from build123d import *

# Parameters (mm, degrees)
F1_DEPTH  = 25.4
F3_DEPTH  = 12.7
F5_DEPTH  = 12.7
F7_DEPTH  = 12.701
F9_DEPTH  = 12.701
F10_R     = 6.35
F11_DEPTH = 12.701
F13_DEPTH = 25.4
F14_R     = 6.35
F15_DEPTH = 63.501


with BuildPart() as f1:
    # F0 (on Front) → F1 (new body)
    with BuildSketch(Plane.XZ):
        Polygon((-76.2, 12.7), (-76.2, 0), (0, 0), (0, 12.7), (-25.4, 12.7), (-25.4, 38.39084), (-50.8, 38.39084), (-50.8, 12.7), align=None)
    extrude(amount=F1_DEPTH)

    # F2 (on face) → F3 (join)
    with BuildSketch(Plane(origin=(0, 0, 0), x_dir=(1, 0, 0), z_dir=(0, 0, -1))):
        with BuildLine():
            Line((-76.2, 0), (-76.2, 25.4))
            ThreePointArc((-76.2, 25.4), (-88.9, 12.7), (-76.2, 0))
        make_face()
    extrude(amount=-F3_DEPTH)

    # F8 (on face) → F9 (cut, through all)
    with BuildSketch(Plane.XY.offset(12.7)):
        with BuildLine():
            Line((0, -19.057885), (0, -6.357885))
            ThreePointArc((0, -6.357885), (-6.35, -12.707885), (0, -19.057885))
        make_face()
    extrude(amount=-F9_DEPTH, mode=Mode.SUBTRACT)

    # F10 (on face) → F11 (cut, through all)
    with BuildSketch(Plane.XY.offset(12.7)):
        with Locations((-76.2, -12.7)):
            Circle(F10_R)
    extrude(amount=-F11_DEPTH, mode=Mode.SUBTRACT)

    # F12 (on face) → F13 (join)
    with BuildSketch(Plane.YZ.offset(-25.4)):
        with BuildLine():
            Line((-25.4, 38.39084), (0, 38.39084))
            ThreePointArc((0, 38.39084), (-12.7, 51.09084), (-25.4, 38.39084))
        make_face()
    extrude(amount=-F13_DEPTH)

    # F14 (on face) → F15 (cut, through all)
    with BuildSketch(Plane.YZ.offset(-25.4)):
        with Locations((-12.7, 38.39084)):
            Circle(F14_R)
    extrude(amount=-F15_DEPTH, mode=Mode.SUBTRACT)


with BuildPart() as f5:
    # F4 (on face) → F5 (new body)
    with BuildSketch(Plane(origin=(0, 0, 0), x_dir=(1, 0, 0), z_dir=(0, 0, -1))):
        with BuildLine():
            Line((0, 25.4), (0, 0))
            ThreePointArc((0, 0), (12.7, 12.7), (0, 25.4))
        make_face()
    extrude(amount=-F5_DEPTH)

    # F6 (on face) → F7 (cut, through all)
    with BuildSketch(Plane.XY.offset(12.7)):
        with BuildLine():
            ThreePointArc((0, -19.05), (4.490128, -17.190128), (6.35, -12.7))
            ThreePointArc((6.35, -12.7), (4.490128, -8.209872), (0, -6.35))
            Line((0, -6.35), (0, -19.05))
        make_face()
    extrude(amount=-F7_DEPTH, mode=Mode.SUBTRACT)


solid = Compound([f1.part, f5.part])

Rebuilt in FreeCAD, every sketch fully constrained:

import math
import FreeCAD as App
import Part
import Sketcher

V = App.Vector
Q = App.Units.Quantity

doc = App.newDocument("Part")
body = doc.addObject("PartDesign::Body", "Body")

# Sketch on XZ plane
sketch1 = body.newObject("Sketcher::SketchObject", "Sketch")
sketch1.AttachmentSupport = (doc.getObject("XZ_Plane"), [""])
sketch1.MapMode = "FlatFace"
sketch1.addGeometry(Part.LineSegment(V(-76, 13, 0), V(-76, 0, 0)), False)
sketch1.addGeometry(Part.LineSegment(V(-76, 0, 0), V(0, 0, 0)), False)
sketch1.addGeometry(Part.LineSegment(V(0, 0, 0), V(0, 13, 0)), False)
sketch1.addGeometry(Part.LineSegment(V(0, 13, 0), V(-25, 13, 0)), False)
sketch1.addGeometry(Part.LineSegment(V(-25, 13, 0), V(-25, 38, 0)), False)
sketch1.addGeometry(Part.LineSegment(V(-25, 38, 0), V(-51, 38, 0)), False)
sketch1.addGeometry(Part.LineSegment(V(-51, 38, 0), V(-51, 13, 0)), False)
sketch1.addGeometry(Part.LineSegment(V(-51, 13, 0), V(-76, 13, 0)), False)
sketch1.addConstraint(Sketcher.Constraint("Coincident", 0, 2, 1, 1))
sketch1.addConstraint(Sketcher.Constraint("Coincident", 1, 2, 2, 1))
sketch1.addConstraint(Sketcher.Constraint("Coincident", 2, 2, 3, 1))
sketch1.addConstraint(Sketcher.Constraint("Coincident", 3, 2, 4, 1))
sketch1.addConstraint(Sketcher.Constraint("Coincident", 4, 2, 5, 1))
sketch1.addConstraint(Sketcher.Constraint("Coincident", 5, 2, 6, 1))
sketch1.addConstraint(Sketcher.Constraint("Coincident", 6, 2, 7, 1))
sketch1.addConstraint(Sketcher.Constraint("Coincident", 7, 2, 0, 1))
sketch1.addConstraint(Sketcher.Constraint("Vertical", 0))
sketch1.addConstraint(Sketcher.Constraint("Horizontal", 1))
sketch1.addConstraint(Sketcher.Constraint("Vertical", 2))
sketch1.addConstraint(Sketcher.Constraint("Horizontal", 3))
sketch1.addConstraint(Sketcher.Constraint("Vertical", 4))
sketch1.addConstraint(Sketcher.Constraint("Horizontal", 5))
sketch1.addConstraint(Sketcher.Constraint("Vertical", 6))
sketch1.addConstraint(Sketcher.Constraint("Horizontal", 7))
sketch1.addConstraint(Sketcher.Constraint("Coincident", 1, 2, -1, 1))
sketch1.addConstraint(Sketcher.Constraint("Horizontal", 3, 2, 6, 2))
sketch1.addConstraint(Sketcher.Constraint("Equal", 3, 5))
sketch1.addConstraint(Sketcher.Constraint("Equal", 5, 7))
sketch1.addConstraint(Sketcher.Constraint("DistanceX", 1, 1, 1, 2, Q("3 in")))
sketch1.addConstraint(Sketcher.Constraint("DistanceY", 0, 2, 0, 1, Q("0.5 in")))
sketch1.addConstraint(Sketcher.Constraint("DistanceY", 4, 1, 4, 2, 25.69084))
pad1 = body.newObject("PartDesign::Pad", "Pad")
pad1.Profile = sketch1
pad1.Length = Q("1 in")

# Sketch on XY plane
sketch2 = body.newObject("Sketcher::SketchObject", "Sketch001")
sketch2.AttachmentSupport = (doc.getObject("XY_Plane"), [""])
sketch2.MapMode = "FlatFace"
sketch2.addGeometry(Part.LineSegment(V(-76, 0, 0), V(-76, -25, 0)), False)
sketch2.addGeometry(Part.ArcOfCircle(Part.Circle(V(-76, -13, 0), V(0, 0, 1), 13), math.radians(90), math.radians(270)), False)
sketch2.addConstraint(Sketcher.Constraint("Coincident", 0, 1, 1, 1))
sketch2.addConstraint(Sketcher.Constraint("Coincident", 1, 2, 0, 2))
sketch2.addConstraint(Sketcher.Constraint("Vertical", 0))
sketch2.addConstraint(Sketcher.Constraint("PointOnObject", 0, 1, -1))
sketch2.addConstraint(Sketcher.Constraint("Vertical", 1, 3, 0, 1))
sketch2.addConstraint(Sketcher.Constraint("Radius", 1, Q("0.5 in")))
sketch2.addConstraint(Sketcher.Constraint("DistanceX", 1, 3, -1, 1, Q("3 in")))
pad2 = body.newObject("PartDesign::Pad", "Pad001")
pad2.Profile = sketch2
pad2.Length = Q("0.5 in")

# Sketch on XY plane
sketch3 = body.newObject("Sketcher::SketchObject", "Sketch002")
sketch3.AttachmentSupport = (doc.getObject("XY_Plane"), [""])
sketch3.MapMode = "FlatFace"
sketch3.AttachmentOffset = App.Placement(V(0, 0, 0.5 * 25.4), App.Rotation())
sketch3.addGeometry(Part.LineSegment(V(0, -19, 0), V(0, -6, 0)), False)
sketch3.addGeometry(Part.ArcOfCircle(Part.Circle(V(0, -13, 0), V(0, 0, 1), 6), math.radians(90), math.radians(270)), False)
sketch3.addConstraint(Sketcher.Constraint("Coincident", 0, 1, 1, 2))
sketch3.addConstraint(Sketcher.Constraint("Coincident", 1, 1, 0, 2))
sketch3.addConstraint(Sketcher.Constraint("Vertical", 0))
sketch3.addConstraint(Sketcher.Constraint("PointOnObject", 1, 3, -2))
sketch3.addConstraint(Sketcher.Constraint("PointOnObject", 0, 1, -2))
sketch3.addConstraint(Sketcher.Constraint("Radius", 1, Q("0.25 in")))
sketch3.addConstraint(Sketcher.Constraint("DistanceY", 1, 3, -1, 1, 12.707885))
pocket1 = body.newObject("PartDesign::Pocket", "Pocket")
pocket1.Profile = sketch3
pocket1.Type = "ThroughAll"

# Sketch on XY plane
sketch4 = body.newObject("Sketcher::SketchObject", "Sketch003")
sketch4.AttachmentSupport = (doc.getObject("XY_Plane"), [""])
sketch4.MapMode = "FlatFace"
sketch4.AttachmentOffset = App.Placement(V(0, 0, 0.5 * 25.4), App.Rotation())
sketch4.addGeometry(Part.Circle(V(-76, -13, 0), V(0, 0, 1), 6), False)
sketch4.addConstraint(Sketcher.Constraint("Diameter", 0, Q("0.5 in")))
sketch4.addConstraint(Sketcher.Constraint("DistanceX", 0, 3, -1, 1, Q("3 in")))
sketch4.addConstraint(Sketcher.Constraint("DistanceY", 0, 3, -1, 1, Q("0.5 in")))
pocket2 = body.newObject("PartDesign::Pocket", "Pocket001")
pocket2.Profile = sketch4
pocket2.Type = "ThroughAll"

# Sketch on YZ plane
sketch5 = body.newObject("Sketcher::SketchObject", "Sketch004")
sketch5.AttachmentSupport = (doc.getObject("YZ_Plane"), [""])
sketch5.MapMode = "FlatFace"
sketch5.AttachmentOffset = App.Placement(V(0, 0, -1 * 25.4), App.Rotation())
sketch5.addGeometry(Part.LineSegment(V(-25, 38, 0), V(0, 38, 0)), False)
sketch5.addGeometry(Part.ArcOfCircle(Part.Circle(V(-13, 38, 0), V(0, 0, 1), 13), math.radians(0), math.radians(180)), False)
sketch5.addConstraint(Sketcher.Constraint("Coincident", 0, 1, 1, 2))
sketch5.addConstraint(Sketcher.Constraint("Coincident", 1, 1, 0, 2))
sketch5.addConstraint(Sketcher.Constraint("Horizontal", 0))
sketch5.addConstraint(Sketcher.Constraint("PointOnObject", 1, 1, -2))
sketch5.addConstraint(Sketcher.Constraint("Horizontal", 1, 3, 0, 1))
sketch5.addConstraint(Sketcher.Constraint("Radius", 1, Q("0.5 in")))
sketch5.addConstraint(Sketcher.Constraint("DistanceY", -1, 1, 1, 3, 38.39084))
pad3 = body.newObject("PartDesign::Pad", "Pad002")
pad3.Profile = sketch5
pad3.Length = Q("1 in")
pad3.Reversed = True

# Sketch on YZ plane
sketch6 = body.newObject("Sketcher::SketchObject", "Sketch005")
sketch6.AttachmentSupport = (doc.getObject("YZ_Plane"), [""])
sketch6.MapMode = "FlatFace"
sketch6.AttachmentOffset = App.Placement(V(0, 0, -1 * 25.4), App.Rotation())
sketch6.addGeometry(Part.Circle(V(-13, 38, 0), V(0, 0, 1), 6), False)
sketch6.addConstraint(Sketcher.Constraint("Diameter", 0, Q("0.5 in")))
sketch6.addConstraint(Sketcher.Constraint("DistanceX", 0, 3, -1, 1, Q("0.5 in")))
sketch6.addConstraint(Sketcher.Constraint("DistanceY", -1, 1, 0, 3, 38.39084))
pocket3 = body.newObject("PartDesign::Pocket", "Pocket002")
pocket3.Profile = sketch6
pocket3.Type = "ThroughAll"
body2 = doc.addObject("PartDesign::Body", "Body001")

# Sketch on XY plane
sketch7 = body2.newObject("Sketcher::SketchObject", "Sketch006")
sketch7.AttachmentSupport = (doc.getObject("XY_Plane001"), [""])
sketch7.MapMode = "FlatFace"
sketch7.addGeometry(Part.LineSegment(V(0, -25, 0), V(0, 0, 0)), False)
sketch7.addGeometry(Part.ArcOfCircle(Part.Circle(V(0, -13, 0), V(0, 0, 1), 13), math.radians(-90), math.radians(90)), False)
sketch7.addConstraint(Sketcher.Constraint("Coincident", 0, 1, 1, 1))
sketch7.addConstraint(Sketcher.Constraint("Coincident", 1, 2, 0, 2))
sketch7.addConstraint(Sketcher.Constraint("Vertical", 0))
sketch7.addConstraint(Sketcher.Constraint("Coincident", 1, 2, -1, 1))
sketch7.addConstraint(Sketcher.Constraint("PointOnObject", 1, 3, -2))
sketch7.addConstraint(Sketcher.Constraint("Radius", 1, Q("0.5 in")))
pad4 = body2.newObject("PartDesign::Pad", "Pad003")
pad4.Profile = sketch7
pad4.Length = Q("0.5 in")

# Sketch on XY plane
sketch8 = body2.newObject("Sketcher::SketchObject", "Sketch007")
sketch8.AttachmentSupport = (doc.getObject("XY_Plane001"), [""])
sketch8.MapMode = "FlatFace"
sketch8.AttachmentOffset = App.Placement(V(0, 0, 0.5 * 25.4), App.Rotation())
sketch8.addGeometry(Part.ArcOfCircle(Part.Circle(V(0, -13, 0), V(0, 0, 1), 6), math.radians(-90), math.radians(0)), False)
sketch8.addGeometry(Part.ArcOfCircle(Part.Circle(V(0, -13, 0), V(0, 0, 1), 6), math.radians(0), math.radians(90)), False)
sketch8.addGeometry(Part.LineSegment(V(0, -6, 0), V(0, -19, 0)), False)
sketch8.addConstraint(Sketcher.Constraint("Tangent", 0, 2, 1, 1))
sketch8.addConstraint(Sketcher.Constraint("Coincident", 1, 2, 2, 1))
sketch8.addConstraint(Sketcher.Constraint("Coincident", 2, 2, 0, 1))
sketch8.addConstraint(Sketcher.Constraint("Vertical", 2))
sketch8.addConstraint(Sketcher.Constraint("Equal", 0, 1))
sketch8.addConstraint(Sketcher.Constraint("PointOnObject", 0, 3, -2))
sketch8.addConstraint(Sketcher.Constraint("PointOnObject", 1, 2, -2))
sketch8.addConstraint(Sketcher.Constraint("Horizontal", 1, 3, 0, 2))
sketch8.addConstraint(Sketcher.Constraint("Radius", 0, Q("0.25 in")))
sketch8.addConstraint(Sketcher.Constraint("DistanceY", 0, 3, -1, 1, Q("0.5 in")))
pocket4 = body2.newObject("PartDesign::Pocket", "Pocket003")
pocket4.Profile = sketch8
pocket4.Type = "ThroughAll"

doc.recompute()
